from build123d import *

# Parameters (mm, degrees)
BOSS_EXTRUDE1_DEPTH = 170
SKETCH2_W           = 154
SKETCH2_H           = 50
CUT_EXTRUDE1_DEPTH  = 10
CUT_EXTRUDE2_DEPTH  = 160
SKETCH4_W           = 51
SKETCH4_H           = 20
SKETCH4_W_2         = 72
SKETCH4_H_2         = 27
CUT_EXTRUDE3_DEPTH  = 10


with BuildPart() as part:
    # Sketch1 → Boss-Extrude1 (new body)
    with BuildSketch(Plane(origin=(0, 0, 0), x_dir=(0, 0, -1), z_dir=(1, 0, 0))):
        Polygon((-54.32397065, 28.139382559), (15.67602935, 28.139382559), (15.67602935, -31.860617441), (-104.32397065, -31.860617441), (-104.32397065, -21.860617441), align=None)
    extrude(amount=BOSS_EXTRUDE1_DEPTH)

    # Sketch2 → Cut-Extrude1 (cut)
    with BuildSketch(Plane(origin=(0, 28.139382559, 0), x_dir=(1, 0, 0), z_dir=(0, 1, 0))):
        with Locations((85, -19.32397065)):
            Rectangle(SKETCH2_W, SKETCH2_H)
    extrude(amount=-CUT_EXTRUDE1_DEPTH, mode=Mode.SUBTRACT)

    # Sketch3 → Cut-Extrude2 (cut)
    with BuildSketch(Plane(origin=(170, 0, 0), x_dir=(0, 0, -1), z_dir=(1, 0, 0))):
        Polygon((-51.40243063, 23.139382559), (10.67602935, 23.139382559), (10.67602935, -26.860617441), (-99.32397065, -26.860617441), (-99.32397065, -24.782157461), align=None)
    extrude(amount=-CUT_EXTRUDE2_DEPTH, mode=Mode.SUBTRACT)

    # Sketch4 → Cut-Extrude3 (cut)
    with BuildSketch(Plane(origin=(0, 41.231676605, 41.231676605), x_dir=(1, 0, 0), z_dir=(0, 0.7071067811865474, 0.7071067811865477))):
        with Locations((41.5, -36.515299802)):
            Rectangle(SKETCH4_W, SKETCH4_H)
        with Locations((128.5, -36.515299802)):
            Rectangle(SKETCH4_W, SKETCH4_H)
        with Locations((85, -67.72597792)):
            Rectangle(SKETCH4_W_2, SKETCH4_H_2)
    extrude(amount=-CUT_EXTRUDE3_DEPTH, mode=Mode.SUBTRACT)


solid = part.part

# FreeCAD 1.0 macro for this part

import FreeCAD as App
import Part
import Sketcher

V = App.Vector
Q = App.Units.Quantity

doc = App.newDocument("Part")
body = doc.addObject("PartDesign::Body", "Body")

# Sketch on YZ plane
sketch1 = body.newObject("Sketcher::SketchObject", "Sketch")
sketch1.AttachmentSupport = (doc.getObject("YZ_Plane"), [""])
sketch1.MapMode = "FlatFace"
sketch1.addGeometry([
    Part.LineSegment(V(28, -16, 0), V(28, 54, 0)),  # 0
    Part.LineSegment(V(28, 54, 0), V(-22, 104, 0)),  # 1
    Part.LineSegment(V(-22, 104, 0), V(-32, 104, 0)),  # 2
    Part.LineSegment(V(-32, 104, 0), V(-32, -16, 0)),  # 3
    Part.LineSegment(V(-32, -16, 0), V(28, -16, 0)),  # 4
], False)
sketch1.addConstraint([
    Sketcher.Constraint("Coincident", 0, 2, 1, 1),
    Sketcher.Constraint("Coincident", 1, 2, 2, 1),
    Sketcher.Constraint("Coincident", 2, 2, 3, 1),
    Sketcher.Constraint("Coincident", 3, 2, 4, 1),
    Sketcher.Constraint("Coincident", 4, 2, 0, 1),
    Sketcher.Constraint("Vertical", 0),
    Sketcher.Constraint("Horizontal", 2),
    Sketcher.Constraint("Vertical", 3),
    Sketcher.Constraint("Horizontal", 4),
    Sketcher.Constraint("DistanceX", 2, 2, 2, 1, Q("10 mm")),
    Sketcher.Constraint("DistanceX", 4, 1, 4, 2, Q("60 mm")),
    Sketcher.Constraint("DistanceY", 0, 1, 0, 2, Q("70 mm")),
    Sketcher.Constraint("DistanceY", 3, 2, 3, 1, Q("120 mm")),
    Sketcher.Constraint("DistanceY", -1, 1, 0, 2, Q("54.323971 mm")),
    Sketcher.Constraint("DistanceX", -1, 1, 0, 2, Q("28.139383 mm")),
])
pad1 = body.newObject("PartDesign::Pad", "Pad")
pad1.Profile = sketch1
pad1.Length = 170

# Sketch on XZ plane
sketch2 = body.newObject("Sketcher::SketchObject", "Sketch001")
sketch2.AttachmentSupport = (doc.getObject("XZ_Plane"), [""])
sketch2.MapMode = "FlatFace"
sketch2.AttachmentOffset = App.Placement(V(0, 0, -28.139383), App.Rotation())
sketch2.addGeometry([
    Part.LineSegment(V(8, -6, 0), V(8, 44, 0)),
    Part.LineSegment(V(8, 44, 0), V(162, 44, 0)),
    Part.LineSegment(V(162, 44, 0), V(162, -6, 0)),
    Part.LineSegment(V(162, -6, 0), V(8, -6, 0)),
], False)
sketch2.addConstraint([
    Sketcher.Constraint("Coincident", 0, 2, 1, 1),
    Sketcher.Constraint("Coincident", 1, 2, 2, 1),
    Sketcher.Constraint("Coincident", 2, 2, 3, 1),
    Sketcher.Constraint("Coincident", 3, 2, 0, 1),
    Sketcher.Constraint("Vertical", 0),
    Sketcher.Constraint("Horizontal", 1),
    Sketcher.Constraint("Vertical", 2),
    Sketcher.Constraint("Horizontal", 3),
    Sketcher.Constraint("DistanceX", 1, 1, 1, 2, Q("154 mm")),
    Sketcher.Constraint("DistanceY", 0, 1, 0, 2, Q("50 mm")),
    Sketcher.Constraint("DistanceX", -1, 1, 0, 2, Q("8 mm")),
    Sketcher.Constraint("DistanceY", -1, 1, 0, 2, Q("44.323971 mm")),
])
pocket1 = body.newObject("PartDesign::Pocket", "Pocket")
pocket1.Profile = sketch2
pocket1.Length = 10
pocket1.Reversed = True

# Sketch on YZ plane
sketch3 = body.newObject("Sketcher::SketchObject", "Sketch002")
sketch3.AttachmentSupport = (doc.getObject("YZ_Plane"), [""])
sketch3.MapMode = "FlatFace"
sketch3.AttachmentOffset = App.Placement(V(0, 0, 170), App.Rotation())
sketch3.addGeometry([
    Part.LineSegment(V(23.1, -10.7, 0), V(23.1, 51.4, 0)),  # 0
    Part.LineSegment(V(23.1, 51.4, 0), V(-24.8, 99.3, 0)),  # 1
    Part.LineSegment(V(-24.8, 99.3, 0), V(-26.9, 99.3, 0)),  # 2
    Part.LineSegment(V(-26.9, 99.3, 0), V(-26.9, -10.7, 0)),  # 3
    Part.LineSegment(V(-26.9, -10.7, 0), V(23.1, -10.7, 0)),  # 4
], False)
sketch3.addConstraint([
    Sketcher.Constraint("Coincident", 0, 2, 1, 1),
    Sketcher.Constraint("Coincident", 1, 2, 2, 1),
    Sketcher.Constraint("Coincident", 2, 2, 3, 1),
    Sketcher.Constraint("Coincident", 3, 2, 4, 1),
    Sketcher.Constraint("Coincident", 4, 2, 0, 1),
    Sketcher.Constraint("Vertical", 0),
    Sketcher.Constraint("Horizontal", 2),
    Sketcher.Constraint("Vertical", 3),
    Sketcher.Constraint("Horizontal", 4),
    Sketcher.Constraint("DistanceX", 4, 1, 4, 2, Q("50 mm")),
    Sketcher.Constraint("DistanceY", 3, 2, 3, 1, Q("110 mm")),
    Sketcher.Constraint("Angle", 1, Q("135 deg")),
    Sketcher.Constraint("DistanceX", 2, 2, 2, 1, Q("2.07846 mm")),
    Sketcher.Constraint("DistanceY", -1, 1, 0, 2, Q("51.402431 mm")),
    Sketcher.Constraint("DistanceX", -1, 1, 0, 2, Q("23.139383 mm")),
])
pocket2 = body.newObject("PartDesign::Pocket", "Pocket001")
pocket2.Profile = sketch3
pocket2.Length = 160

# Sketch on an angled plane
sketch4 = body.newObject("Sketcher::SketchObject", "Sketch003")
sketch4.Placement = App.Placement(V(0, 41.231677, 41.231677), App.Rotation(V(1, 0, 0), V(0, 0.707106781, -0.707106781), V(0, 0.707106781, 0.707106781), "ZXY"))
sketch4.addGeometry([
    Part.LineSegment(V(16, -27, 0), V(16, -47, 0)),  # 0
    Part.LineSegment(V(16, -47, 0), V(67, -47, 0)),  # 1
    Part.LineSegment(V(67, -47, 0), V(67, -27, 0)),  # 2
    Part.LineSegment(V(67, -27, 0), V(16, -27, 0)),  # 3
    Part.LineSegment(V(103, -27, 0), V(103, -47, 0)),  # 4
    Part.LineSegment(V(103, -47, 0), V(154, -47, 0)),  # 5
    Part.LineSegment(V(154, -47, 0), V(154, -27, 0)),  # 6
    Part.LineSegment(V(154, -27, 0), V(103, -27, 0)),  # 7
    Part.LineSegment(V(49, -54, 0), V(49, -81, 0)),  # 8
    Part.LineSegment(V(49, -81, 0), V(121, -81, 0)),  # 9
    Part.LineSegment(V(121, -81, 0), V(121, -54, 0)),  # 10
    Part.LineSegment(V(121, -54, 0), V(49, -54, 0)),  # 11
], False)
sketch4.addConstraint([
    Sketcher.Constraint("Coincident", 0, 2, 1, 1),
    Sketcher.Constraint("Coincident", 1, 2, 2, 1),
    Sketcher.Constraint("Coincident", 2, 2, 3, 1),
    Sketcher.Constraint("Coincident", 3, 2, 0, 1),
    Sketcher.Constraint("Coincident", 4, 2, 5, 1),
    Sketcher.Constraint("Coincident", 5, 2, 6, 1),
    Sketcher.Constraint("Coincident", 6, 2, 7, 1),
    Sketcher.Constraint("Coincident", 7, 2, 4, 1),
    Sketcher.Constraint("Coincident", 8, 2, 9, 1),
    Sketcher.Constraint("Coincident", 9, 2, 10, 1),
    Sketcher.Constraint("Coincident", 10, 2, 11, 1),
    Sketcher.Constraint("Coincident", 11, 2, 8, 1),
    Sketcher.Constraint("Vertical", 0),
    Sketcher.Constraint("Horizontal", 1),
    Sketcher.Constraint("Vertical", 2),
    Sketcher.Constraint("Horizontal", 3),
    Sketcher.Constraint("Vertical", 4),
    Sketcher.Constraint("Horizontal", 5),
    Sketcher.Constraint("Vertical", 6),
    Sketcher.Constraint("Horizontal", 7),
    Sketcher.Constraint("Vertical", 8),
    Sketcher.Constraint("Horizontal", 9),
    Sketcher.Constraint("Vertical", 10),
    Sketcher.Constraint("Horizontal", 11),
    Sketcher.Constraint("Horizontal", 1, 2, 4, 2),
    Sketcher.Constraint("Horizontal", 3, 2, 6, 2),
    Sketcher.Constraint("Equal", 3, 5),
    Sketcher.Constraint("DistanceX", 1, 1, 1, 2, Q("51 mm")),
    Sketcher.Constraint("DistanceX", 9, 1, 9, 2, Q("72 mm")),
    Sketcher.Constraint("DistanceY", 0, 2, 0, 1, Q("20 mm")),
    Sketcher.Constraint("DistanceY", 8, 2, 8, 1, Q("27 mm")),
    Sketcher.Constraint("DistanceX", -1, 1, 0, 2, Q("16 mm")),
    Sketcher.Constraint("DistanceX", -1, 1, 4, 2, Q("103 mm")),
    Sketcher.Constraint("DistanceX", -1, 1, 8, 2, Q("49 mm")),
    Sketcher.Constraint("DistanceY", 0, 2, -1, 1, Q("46.5153 mm")),
    Sketcher.Constraint("DistanceY", 8, 2, 1, 2, Q("34.710678 mm")),
])
pocket3 = body.newObject("PartDesign::Pocket", "Pocket002")
pocket3.Profile = sketch4
pocket3.Length = 10

doc.recompute()
